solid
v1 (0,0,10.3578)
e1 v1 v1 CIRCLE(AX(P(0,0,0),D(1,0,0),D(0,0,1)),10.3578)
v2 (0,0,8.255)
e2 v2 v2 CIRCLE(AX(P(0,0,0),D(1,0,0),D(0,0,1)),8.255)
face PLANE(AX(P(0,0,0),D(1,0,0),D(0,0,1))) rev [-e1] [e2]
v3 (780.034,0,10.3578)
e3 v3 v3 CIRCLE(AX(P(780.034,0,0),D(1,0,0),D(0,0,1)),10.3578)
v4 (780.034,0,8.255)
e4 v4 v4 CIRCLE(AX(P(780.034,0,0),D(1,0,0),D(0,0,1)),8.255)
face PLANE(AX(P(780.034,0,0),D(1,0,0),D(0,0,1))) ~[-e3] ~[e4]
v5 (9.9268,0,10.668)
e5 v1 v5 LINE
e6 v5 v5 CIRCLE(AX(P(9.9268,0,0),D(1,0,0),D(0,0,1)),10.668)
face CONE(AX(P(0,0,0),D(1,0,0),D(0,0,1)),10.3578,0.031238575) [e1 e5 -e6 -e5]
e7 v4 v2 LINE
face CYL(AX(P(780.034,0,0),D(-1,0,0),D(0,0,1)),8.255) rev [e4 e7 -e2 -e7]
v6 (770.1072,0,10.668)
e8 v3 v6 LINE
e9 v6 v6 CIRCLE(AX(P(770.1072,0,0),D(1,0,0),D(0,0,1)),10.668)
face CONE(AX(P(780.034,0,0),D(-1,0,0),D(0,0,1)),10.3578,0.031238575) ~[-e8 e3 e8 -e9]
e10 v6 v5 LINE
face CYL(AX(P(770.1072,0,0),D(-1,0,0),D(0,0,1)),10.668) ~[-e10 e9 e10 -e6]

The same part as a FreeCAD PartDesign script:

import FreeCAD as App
import Part
import Sketcher

V = App.Vector
Q = App.Units.Quantity


def add_polygon(sketch, points):
    """Adds a closed chain of lines whose ends are joined by coincident constraints."""
    first, n = sketch.GeometryCount, len(points)
    for a, b in zip(points, points[1:] + points[:1]):
        sketch.addGeometry(Part.LineSegment(App.Vector(*a, 0), App.Vector(*b, 0)), False)
    for i in range(n):
        sketch.addConstraint(Sketcher.Constraint("Coincident", first + i, 2, first + (i + 1) % n, 1))

doc = App.newDocument("Part")
body = doc.addObject("PartDesign::Body", "Body")

sketch1 = doc.addObject("Sketcher::SketchObject", "Sketch")
body.addObject(sketch1)
sketch1.AttachmentSupport = (doc.XZ_Plane, [""])
sketch1.MapMode = "FlatFace"
add_polygon(sketch1, [(780, 10.4), (780, 8.3), (0, 8.3), (0, 10.4), (9.9, 10.7), (770.1, 10.7)])
sketch1.addConstraint(Sketcher.Constraint("Vertical", 0))
sketch1.addConstraint(Sketcher.Constraint("Horizontal", 1))
sketch1.addConstraint(Sketcher.Constraint("Vertical", 2))
sketch1.addConstraint(Sketcher.Constraint("Horizontal", 4))
sketch1.addConstraint(Sketcher.Constraint("PointOnObject", 1, 2, -2))
sketch1.addConstraint(Sketcher.Constraint("Horizontal", 2, 2, 5, 2))
sketch1.addConstraint(Sketcher.Constraint("Equal", 3, 5))
sketch1.addConstraint(Sketcher.Constraint("DistanceX", 1, 2, 1, 1, Q("30.71 in")))
sketch1.addConstraint(Sketcher.Constraint("Angle", 3, Q("1.7898 deg")))
sketch1.addConstraint(Sketcher.Constraint("DistanceY", -1, 1, 3, 2, Q("0.42 in")))
sketch1.addConstraint(Sketcher.Constraint("Distance", 3, Q("0.391 in")))
sketch1.addConstraint(Sketcher.Constraint("DistanceY", -1, 1, 0, 2, Q("0.325 in")))
revolution = doc.addObject("PartDesign::Revolution", "Revolution")
body.addObject(revolution)
revolution.Profile = sketch1
revolution.ReferenceAxis = (sketch1, ["H_Axis"])
revolution.Angle = 360

doc.recompute()
